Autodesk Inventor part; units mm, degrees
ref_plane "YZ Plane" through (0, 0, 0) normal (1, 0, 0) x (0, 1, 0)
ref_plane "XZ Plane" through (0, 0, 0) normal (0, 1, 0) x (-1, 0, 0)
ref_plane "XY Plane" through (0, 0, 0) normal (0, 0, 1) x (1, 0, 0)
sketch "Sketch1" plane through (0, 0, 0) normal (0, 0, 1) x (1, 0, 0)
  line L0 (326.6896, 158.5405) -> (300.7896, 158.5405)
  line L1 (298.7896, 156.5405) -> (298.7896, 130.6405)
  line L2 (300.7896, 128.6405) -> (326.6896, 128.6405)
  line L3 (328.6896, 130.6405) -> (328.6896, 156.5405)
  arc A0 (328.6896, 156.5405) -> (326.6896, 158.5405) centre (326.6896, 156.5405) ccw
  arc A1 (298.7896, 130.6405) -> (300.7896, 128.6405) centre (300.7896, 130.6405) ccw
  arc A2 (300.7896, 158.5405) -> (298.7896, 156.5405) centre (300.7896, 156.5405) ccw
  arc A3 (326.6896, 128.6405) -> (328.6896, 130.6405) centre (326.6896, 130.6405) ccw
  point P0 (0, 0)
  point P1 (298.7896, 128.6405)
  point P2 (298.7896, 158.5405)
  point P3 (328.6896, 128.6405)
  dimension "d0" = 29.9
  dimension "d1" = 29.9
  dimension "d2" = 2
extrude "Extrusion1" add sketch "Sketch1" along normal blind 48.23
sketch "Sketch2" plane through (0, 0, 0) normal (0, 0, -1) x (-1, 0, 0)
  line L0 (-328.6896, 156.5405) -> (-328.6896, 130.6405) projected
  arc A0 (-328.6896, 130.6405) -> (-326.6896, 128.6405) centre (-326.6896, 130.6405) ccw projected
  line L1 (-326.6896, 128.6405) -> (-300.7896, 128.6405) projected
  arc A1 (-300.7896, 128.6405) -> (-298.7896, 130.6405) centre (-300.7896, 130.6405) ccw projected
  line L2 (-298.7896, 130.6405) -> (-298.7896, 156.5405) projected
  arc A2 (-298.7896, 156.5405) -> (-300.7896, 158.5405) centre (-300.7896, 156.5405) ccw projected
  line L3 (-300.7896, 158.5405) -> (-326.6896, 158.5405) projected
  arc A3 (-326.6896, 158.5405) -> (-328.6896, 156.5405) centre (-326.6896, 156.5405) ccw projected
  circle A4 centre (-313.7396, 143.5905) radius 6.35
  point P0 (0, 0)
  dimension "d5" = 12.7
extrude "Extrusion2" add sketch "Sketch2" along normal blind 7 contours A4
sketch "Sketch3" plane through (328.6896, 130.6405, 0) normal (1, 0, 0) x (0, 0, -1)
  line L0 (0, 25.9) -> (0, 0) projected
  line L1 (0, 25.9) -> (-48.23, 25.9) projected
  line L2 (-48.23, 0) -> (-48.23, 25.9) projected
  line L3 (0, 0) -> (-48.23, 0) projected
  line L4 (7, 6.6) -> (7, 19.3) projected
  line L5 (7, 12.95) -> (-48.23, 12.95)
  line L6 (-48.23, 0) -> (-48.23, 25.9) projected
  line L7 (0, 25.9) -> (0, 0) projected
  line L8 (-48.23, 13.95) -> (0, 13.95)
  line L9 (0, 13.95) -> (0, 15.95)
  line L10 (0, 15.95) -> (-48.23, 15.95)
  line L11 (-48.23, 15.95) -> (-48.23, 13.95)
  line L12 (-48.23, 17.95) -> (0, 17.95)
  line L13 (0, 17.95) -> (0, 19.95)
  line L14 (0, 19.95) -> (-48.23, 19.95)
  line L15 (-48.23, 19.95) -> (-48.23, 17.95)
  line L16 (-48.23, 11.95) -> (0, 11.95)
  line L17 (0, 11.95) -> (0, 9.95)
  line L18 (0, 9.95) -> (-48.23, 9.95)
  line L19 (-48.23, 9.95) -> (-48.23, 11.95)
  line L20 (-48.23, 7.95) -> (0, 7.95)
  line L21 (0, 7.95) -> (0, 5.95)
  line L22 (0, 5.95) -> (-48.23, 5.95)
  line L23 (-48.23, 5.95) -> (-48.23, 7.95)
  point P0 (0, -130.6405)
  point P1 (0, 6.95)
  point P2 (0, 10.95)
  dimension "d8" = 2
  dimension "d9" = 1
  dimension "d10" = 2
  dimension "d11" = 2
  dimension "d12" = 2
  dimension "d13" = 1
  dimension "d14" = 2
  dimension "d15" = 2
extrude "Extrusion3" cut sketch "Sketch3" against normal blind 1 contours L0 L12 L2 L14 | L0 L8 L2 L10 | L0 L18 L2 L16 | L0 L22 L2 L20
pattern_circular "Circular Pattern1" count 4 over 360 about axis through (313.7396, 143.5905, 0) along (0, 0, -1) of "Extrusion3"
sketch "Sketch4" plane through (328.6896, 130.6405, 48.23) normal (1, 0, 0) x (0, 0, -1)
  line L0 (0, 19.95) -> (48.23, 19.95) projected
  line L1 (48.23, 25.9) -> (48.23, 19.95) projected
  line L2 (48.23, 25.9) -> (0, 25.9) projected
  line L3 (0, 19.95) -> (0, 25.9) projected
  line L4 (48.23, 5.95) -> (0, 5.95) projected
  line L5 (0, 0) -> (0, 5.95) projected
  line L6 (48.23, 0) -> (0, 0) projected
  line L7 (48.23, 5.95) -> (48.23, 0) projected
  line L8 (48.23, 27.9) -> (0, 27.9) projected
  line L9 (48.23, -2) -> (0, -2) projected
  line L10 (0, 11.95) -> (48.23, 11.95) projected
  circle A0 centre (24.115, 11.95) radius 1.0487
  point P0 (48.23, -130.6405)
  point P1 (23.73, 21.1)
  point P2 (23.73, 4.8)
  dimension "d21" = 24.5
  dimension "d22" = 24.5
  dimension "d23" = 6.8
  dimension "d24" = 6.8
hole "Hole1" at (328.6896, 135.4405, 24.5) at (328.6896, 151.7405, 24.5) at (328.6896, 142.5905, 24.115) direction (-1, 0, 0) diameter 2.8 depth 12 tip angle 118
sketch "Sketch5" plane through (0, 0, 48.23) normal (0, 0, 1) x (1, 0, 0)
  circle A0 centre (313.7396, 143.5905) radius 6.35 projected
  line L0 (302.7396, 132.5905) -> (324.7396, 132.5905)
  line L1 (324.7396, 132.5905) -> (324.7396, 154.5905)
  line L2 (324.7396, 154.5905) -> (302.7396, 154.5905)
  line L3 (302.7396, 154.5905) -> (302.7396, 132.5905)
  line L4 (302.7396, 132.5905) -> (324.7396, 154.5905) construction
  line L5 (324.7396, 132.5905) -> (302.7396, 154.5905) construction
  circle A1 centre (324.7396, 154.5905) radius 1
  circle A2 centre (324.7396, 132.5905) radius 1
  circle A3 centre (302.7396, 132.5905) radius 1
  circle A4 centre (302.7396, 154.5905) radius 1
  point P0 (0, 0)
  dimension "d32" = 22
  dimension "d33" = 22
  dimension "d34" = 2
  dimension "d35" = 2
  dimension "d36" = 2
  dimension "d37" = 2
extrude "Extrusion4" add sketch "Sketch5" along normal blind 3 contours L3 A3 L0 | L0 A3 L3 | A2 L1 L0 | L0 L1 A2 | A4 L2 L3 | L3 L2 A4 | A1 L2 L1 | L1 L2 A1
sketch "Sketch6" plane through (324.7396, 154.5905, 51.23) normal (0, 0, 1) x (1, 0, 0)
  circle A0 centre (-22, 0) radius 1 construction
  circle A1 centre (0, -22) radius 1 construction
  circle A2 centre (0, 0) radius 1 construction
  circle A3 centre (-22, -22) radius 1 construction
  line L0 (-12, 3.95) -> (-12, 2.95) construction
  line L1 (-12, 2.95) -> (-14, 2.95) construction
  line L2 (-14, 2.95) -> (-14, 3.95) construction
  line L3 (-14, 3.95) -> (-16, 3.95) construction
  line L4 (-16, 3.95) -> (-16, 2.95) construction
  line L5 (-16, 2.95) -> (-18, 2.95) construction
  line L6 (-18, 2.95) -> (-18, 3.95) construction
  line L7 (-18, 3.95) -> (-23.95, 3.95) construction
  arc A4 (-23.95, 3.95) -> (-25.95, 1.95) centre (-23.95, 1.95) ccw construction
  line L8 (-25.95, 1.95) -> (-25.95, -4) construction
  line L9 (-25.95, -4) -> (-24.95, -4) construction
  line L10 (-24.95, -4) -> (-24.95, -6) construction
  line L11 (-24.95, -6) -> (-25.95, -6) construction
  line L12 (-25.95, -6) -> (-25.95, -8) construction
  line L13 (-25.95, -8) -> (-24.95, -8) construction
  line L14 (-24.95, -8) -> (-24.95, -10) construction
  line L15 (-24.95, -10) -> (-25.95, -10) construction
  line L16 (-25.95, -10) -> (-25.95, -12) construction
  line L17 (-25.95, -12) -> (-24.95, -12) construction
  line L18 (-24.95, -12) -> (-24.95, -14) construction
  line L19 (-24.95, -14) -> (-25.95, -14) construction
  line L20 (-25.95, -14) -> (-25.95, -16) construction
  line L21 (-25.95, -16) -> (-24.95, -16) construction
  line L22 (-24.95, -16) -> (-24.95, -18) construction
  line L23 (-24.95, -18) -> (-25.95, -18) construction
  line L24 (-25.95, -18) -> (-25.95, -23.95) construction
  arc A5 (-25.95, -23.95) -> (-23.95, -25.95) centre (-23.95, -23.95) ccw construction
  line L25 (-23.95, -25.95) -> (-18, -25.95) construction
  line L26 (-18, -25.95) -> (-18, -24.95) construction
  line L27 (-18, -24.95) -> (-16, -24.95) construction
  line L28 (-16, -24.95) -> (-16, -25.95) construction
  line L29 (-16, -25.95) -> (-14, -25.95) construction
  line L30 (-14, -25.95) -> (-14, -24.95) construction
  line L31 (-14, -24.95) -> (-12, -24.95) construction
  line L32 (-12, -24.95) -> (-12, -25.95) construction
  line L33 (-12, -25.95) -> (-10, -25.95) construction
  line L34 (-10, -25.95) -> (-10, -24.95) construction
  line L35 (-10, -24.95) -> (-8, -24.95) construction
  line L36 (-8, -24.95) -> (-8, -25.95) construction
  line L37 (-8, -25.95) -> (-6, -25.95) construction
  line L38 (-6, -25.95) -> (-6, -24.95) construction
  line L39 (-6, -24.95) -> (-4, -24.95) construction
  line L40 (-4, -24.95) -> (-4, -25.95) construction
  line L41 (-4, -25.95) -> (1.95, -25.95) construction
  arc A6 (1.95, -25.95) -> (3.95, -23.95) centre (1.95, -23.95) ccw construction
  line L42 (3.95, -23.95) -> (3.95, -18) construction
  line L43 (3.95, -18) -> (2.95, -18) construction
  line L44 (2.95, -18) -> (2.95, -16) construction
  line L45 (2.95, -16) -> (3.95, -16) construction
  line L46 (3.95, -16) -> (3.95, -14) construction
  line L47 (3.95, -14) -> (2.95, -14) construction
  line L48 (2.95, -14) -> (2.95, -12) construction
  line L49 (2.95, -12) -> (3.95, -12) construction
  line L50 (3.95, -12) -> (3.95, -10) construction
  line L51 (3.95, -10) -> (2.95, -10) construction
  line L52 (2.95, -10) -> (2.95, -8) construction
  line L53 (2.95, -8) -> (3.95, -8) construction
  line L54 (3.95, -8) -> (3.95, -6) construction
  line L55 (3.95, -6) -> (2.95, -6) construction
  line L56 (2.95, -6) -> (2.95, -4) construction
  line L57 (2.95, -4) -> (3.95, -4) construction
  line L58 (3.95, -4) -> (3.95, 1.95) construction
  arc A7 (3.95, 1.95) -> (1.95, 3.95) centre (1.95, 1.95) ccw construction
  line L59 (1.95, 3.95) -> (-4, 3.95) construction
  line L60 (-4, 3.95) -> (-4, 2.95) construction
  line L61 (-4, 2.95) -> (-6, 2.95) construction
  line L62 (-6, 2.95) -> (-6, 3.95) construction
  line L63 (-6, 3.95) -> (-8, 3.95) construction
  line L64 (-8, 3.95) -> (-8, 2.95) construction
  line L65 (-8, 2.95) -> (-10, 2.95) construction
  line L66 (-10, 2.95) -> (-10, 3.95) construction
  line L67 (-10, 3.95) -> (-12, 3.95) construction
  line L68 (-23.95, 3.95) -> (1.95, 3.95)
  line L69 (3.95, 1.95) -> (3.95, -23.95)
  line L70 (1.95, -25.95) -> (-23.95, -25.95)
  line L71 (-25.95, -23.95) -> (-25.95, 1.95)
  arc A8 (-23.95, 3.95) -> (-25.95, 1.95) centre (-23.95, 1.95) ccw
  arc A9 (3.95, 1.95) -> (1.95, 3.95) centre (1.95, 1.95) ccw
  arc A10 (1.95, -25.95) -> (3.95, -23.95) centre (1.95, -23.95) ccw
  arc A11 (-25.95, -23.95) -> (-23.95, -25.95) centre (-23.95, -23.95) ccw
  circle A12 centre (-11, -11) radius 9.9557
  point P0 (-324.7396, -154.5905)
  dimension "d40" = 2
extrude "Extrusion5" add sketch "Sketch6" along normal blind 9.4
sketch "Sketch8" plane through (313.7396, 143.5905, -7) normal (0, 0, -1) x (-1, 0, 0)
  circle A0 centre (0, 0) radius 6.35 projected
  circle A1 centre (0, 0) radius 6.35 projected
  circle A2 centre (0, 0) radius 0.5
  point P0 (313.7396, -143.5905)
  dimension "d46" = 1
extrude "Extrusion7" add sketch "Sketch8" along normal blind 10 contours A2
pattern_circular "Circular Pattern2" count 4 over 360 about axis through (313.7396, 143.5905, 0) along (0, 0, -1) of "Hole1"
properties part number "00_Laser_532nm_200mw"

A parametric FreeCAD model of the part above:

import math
import FreeCAD as App
import Part
import Sketcher

V = App.Vector
Q = App.Units.Quantity


def add_polygon(sketch, points):
    """Adds a closed chain of lines whose ends are joined by coincident constraints."""
    first, n = sketch.GeometryCount, len(points)
    for a, b in zip(points, points[1:] + points[:1]):
        sketch.addGeometry(Part.LineSegment(App.Vector(*a, 0), App.Vector(*b, 0)), False)
    for i in range(n):
        sketch.addConstraint(Sketcher.Constraint("Coincident", first + i, 2, first + (i + 1) % n, 1))

doc = App.newDocument("Part")
body = doc.addObject("PartDesign::Body", "Body")

sketch1 = body.newObject("Sketcher::SketchObject", "Sketch")
sketch1.AttachmentSupport = (doc.getObject("XY_Plane"), [""])
sketch1.MapMode = "FlatFace"
sketch1.addGeometry([
    Part.ArcOfCircle(Part.Circle(V(326.7, 156.5, 0), V(0, 0, 1), 2), math.radians(0), math.radians(90)),
    Part.LineSegment(V(326.7, 158.5, 0), V(300.8, 158.5, 0)),
    Part.ArcOfCircle(Part.Circle(V(300.8, 156.5, 0), V(0, 0, 1), 2), math.radians(90), math.radians(180)),
    Part.LineSegment(V(298.8, 156.5, 0), V(298.8, 130.6, 0)),
    Part.ArcOfCircle(Part.Circle(V(300.8, 130.6, 0), V(0, 0, 1), 2), math.radians(180), math.radians(270)),
    Part.LineSegment(V(300.8, 128.6, 0), V(326.7, 128.6, 0)),
    Part.ArcOfCircle(Part.Circle(V(326.7, 130.6, 0), V(0, 0, 1), 2), math.radians(-90), math.radians(0)),
    Part.LineSegment(V(328.7, 130.6, 0), V(328.7, 156.5, 0)),
], False)
sketch1.addConstraint([
    Sketcher.Constraint("Tangent", 0, 2, 1, 1),
    Sketcher.Constraint("Tangent", 1, 2, 2, 1),
    Sketcher.Constraint("Tangent", 2, 2, 3, 1),
    Sketcher.Constraint("Tangent", 3, 2, 4, 1),
    Sketcher.Constraint("Tangent", 4, 2, 5, 1),
    Sketcher.Constraint("Tangent", 5, 2, 6, 1),
    Sketcher.Constraint("Tangent", 6, 2, 7, 1),
    Sketcher.Constraint("Tangent", 7, 2, 0, 1),
    Sketcher.Constraint("Horizontal", 1),
    Sketcher.Constraint("Vertical", 3),
    Sketcher.Constraint("Horizontal", 5),
    Sketcher.Constraint("Vertical", 7),
    Sketcher.Constraint("Equal", 0, 2),
    Sketcher.Constraint("Equal", 2, 4),
    Sketcher.Constraint("Equal", 4, 6),
    Sketcher.Constraint("Equal", 5, 3),
    Sketcher.Constraint("Radius", 0, Q("2 mm")),
    Sketcher.Constraint("DistanceX", 1, 2, 1, 1, Q("25.9 mm")),
    Sketcher.Constraint("DistanceX", -1, 1, 0, 3, Q("326.6896 mm")),
    Sketcher.Constraint("DistanceY", -1, 1, 0, 3, Q("156.5405 mm")),
])
pad1 = body.newObject("PartDesign::Pad", "Pad")
pad1.Profile = sketch1
pad1.Length = 48.23

sketch2 = body.newObject("Sketcher::SketchObject", "Sketch001")
sketch2.AttachmentSupport = (doc.getObject("XY_Plane"), [""])
sketch2.MapMode = "FlatFace"
sketch2.addGeometry(Part.Circle(V(314, 144, 0), V(0, 0, 1), 6), False)
sketch2.addConstraint([
    Sketcher.Constraint("Diameter", 0, Q("12.7 mm")),
    Sketcher.Constraint("DistanceX", -1, 1, 0, 3, Q("313.7396 mm")),
    Sketcher.Constraint("DistanceY", -1, 1, 0, 3, Q("143.5905 mm")),
])
pad2 = body.newObject("PartDesign::Pad", "Pad001")
pad2.Profile = sketch2
pad2.Length = 7
pad2.Reversed = True

sketch3 = body.newObject("Sketcher::SketchObject", "Sketch002")
sketch3.AttachmentSupport = (doc.getObject("YZ_Plane"), [""])
sketch3.MapMode = "FlatFace"
sketch3.AttachmentOffset = App.Placement(V(0, 0, 328.6896), App.Rotation())
add_polygon(sketch3, [(148.6, 0), (150.6, 0), (150.6, 48.2), (148.6, 48.2)])
add_polygon(sketch3, [(144.6, 0), (146.6, 0), (146.6, 48.2), (144.6, 48.2)])
add_polygon(sketch3, [(140.6, 0), (142.6, 0), (142.6, 48.2), (140.6, 48.2)])
add_polygon(sketch3, [(136.6, 0), (138.6, 0), (138.6, 48.2), (136.6, 48.2)])
sketch3.addConstraint([
    Sketcher.Constraint("Horizontal", 0),
    Sketcher.Constraint("Vertical", 1),
    Sketcher.Constraint("Horizontal", 2),
    Sketcher.Constraint("Vertical", 3),
    Sketcher.Constraint("Horizontal", 4),
    Sketcher.Constraint("Vertical", 5),
    Sketcher.Constraint("Horizontal", 6),
    Sketcher.Constraint("Vertical", 7),
    Sketcher.Constraint("Horizontal", 8),
    Sketcher.Constraint("Vertical", 9),
    Sketcher.Constraint("Horizontal", 10),
    Sketcher.Constraint("Vertical", 11),
    Sketcher.Constraint("Horizontal", 12),
    Sketcher.Constraint("Vertical", 13),
    Sketcher.Constraint("Horizontal", 14),
    Sketcher.Constraint("Vertical", 15),
    Sketcher.Constraint("PointOnObject", 0, 2, -1),
    Sketcher.Constraint("PointOnObject", 4, 2, -1),
    Sketcher.Constraint("PointOnObject", 8, 2, -1),
    Sketcher.Constraint("PointOnObject", 12, 2, -1),
    Sketcher.Constraint("Horizontal", 2, 2, 5, 2),
    Sketcher.Constraint("Horizontal", 6, 2, 9, 2),
    Sketcher.Constraint("Horizontal", 10, 2, 13, 2),
    Sketcher.Constraint("Equal", 2, 4),
    Sketcher.Constraint("Equal", 6, 8),
    Sketcher.Constraint("Equal", 10, 12),
    Sketcher.Constraint("DistanceX", 0, 1, 0, 2, Q("2 mm")),
    Sketcher.Constraint("DistanceX", 4, 2, 3, 2, Q("2 mm")),
    Sketcher.Constraint("DistanceX", 8, 2, 7, 2, Q("2 mm")),
    Sketcher.Constraint("DistanceX", 12, 2, 11, 2, Q("2 mm")),
    Sketcher.Constraint("DistanceY", 1, 1, 1, 2, Q("48.23 mm")),
    Sketcher.Constraint("DistanceX", -1, 1, 0, 2, Q("150.5905 mm")),
])
pocket1 = body.newObject("PartDesign::Pocket", "Pocket")
pocket1.Profile = sketch3
pocket1.Length = 1
doc.recompute()

datumline = body.newObject("PartDesign::Line", "DatumLine")
datumline.Placement = App.Placement(V(313.7396, 143.5905, 0), App.Rotation(V(0, 0, 1), V(0, 0, 1)))
polarpattern = body.newObject("PartDesign::PolarPattern", "PolarPattern")
polarpattern.Originals = [pocket1]
polarpattern.Axis = (datumline, [""])
polarpattern.Angle = 360
polarpattern.Occurrences = 4
body.Tip = polarpattern

sketch4 = body.newObject("Sketcher::SketchObject", "Sketch003")
sketch4.AttachmentSupport = (doc.getObject("YZ_Plane"), [""])
sketch4.MapMode = "FlatFace"
sketch4.AttachmentOffset = App.Placement(V(0, 0, 328.6896), App.Rotation())
sketch4.addGeometry([
    Part.Circle(V(135.4, 24.5, 0), V(0, 0, 1), 1.4),
    Part.Circle(V(151.7, 24.5, 0), V(0, 0, 1), 1.4),
    Part.Circle(V(142.6, 24.1, 0), V(0, 0, 1), 1.4),
], False)
sketch4.addConstraint([
    Sketcher.Constraint("Equal", 0, 1),
    Sketcher.Constraint("Equal", 1, 2),
    Sketcher.Constraint("Horizontal", 0, 3, 1, 3),
    Sketcher.Constraint("Diameter", 0, Q("2.8 mm")),
    Sketcher.Constraint("DistanceY", -1, 1, 0, 3, Q("24.5 mm")),
    Sketcher.Constraint("DistanceX", 0, 3, 1, 3, Q("16.3 mm")),
    Sketcher.Constraint("DistanceX", 0, 3, 2, 3, Q("7.15 mm")),
    Sketcher.Constraint("DistanceY", -1, 1, 2, 3, Q("24.115 mm")),
    Sketcher.Constraint("DistanceX", -1, 1, 0, 3, Q("135.4405 mm")),
])
doc.recompute()
hole = body.newObject("PartDesign::Hole", "Hole")
hole.Profile = sketch4
hole.ThreadType = "None"
hole.Diameter = 2.8
hole.DepthType = "Dimension"
hole.Depth = 12
hole.DrillPoint = "Angled"
hole.DrillPointAngle = 118

sketch5 = body.newObject("Sketcher::SketchObject", "Sketch004")
sketch5.AttachmentSupport = (doc.getObject("XY_Plane"), [""])
sketch5.MapMode = "FlatFace"
sketch5.AttachmentOffset = App.Placement(V(0, 0, 48.23), App.Rotation())
sketch5.addGeometry([
    Part.Circle(V(302.7, 132.6, 0), V(0, 0, 1), 1),
    Part.Circle(V(324.7, 132.6, 0), V(0, 0, 1), 1),
    Part.Circle(V(302.7, 154.6, 0), V(0, 0, 1), 1),
    Part.Circle(V(324.7, 154.6, 0), V(0, 0, 1), 1),
], False)
sketch5.addConstraint([
    Sketcher.Constraint("Equal", 0, 1),
    Sketcher.Constraint("Equal", 1, 2),
    Sketcher.Constraint("Equal", 2, 3),
    Sketcher.Constraint("Horizontal", 0, 3, 1, 3),
    Sketcher.Constraint("Horizontal", 2, 3, 3, 3),
    Sketcher.Constraint("Vertical", 0, 3, 2, 3),
    Sketcher.Constraint("Vertical", 1, 3, 3, 3),
    Sketcher.Constraint("Diameter", 0, Q("2 mm")),
    Sketcher.Constraint("DistanceX", 0, 3, 1, 3, Q("22 mm")),
    Sketcher.Constraint("DistanceY", 0, 3, 2, 3, Q("22 mm")),
    Sketcher.Constraint("DistanceX", -1, 1, 0, 3, Q("302.7396 mm")),
    Sketcher.Constraint("DistanceY", -1, 1, 0, 3, Q("132.5905 mm")),
])
pad3 = body.newObject("PartDesign::Pad", "Pad002")
pad3.Profile = sketch5
pad3.Length = 3

sketch6 = body.newObject("Sketcher::SketchObject", "Sketch005")
sketch6.AttachmentSupport = (doc.getObject("XY_Plane"), [""])
sketch6.MapMode = "FlatFace"
sketch6.AttachmentOffset = App.Placement(V(0, 0, 51.23), App.Rotation())
sketch6.addGeometry([
    Part.LineSegment(V(326.7, 158.5, 0), V(300.8, 158.5, 0)),
    Part.ArcOfCircle(Part.Circle(V(300.8, 156.5, 0), V(0, 0, 1), 2), math.radians(90), math.radians(180)),
    Part.LineSegment(V(298.8, 156.5, 0), V(298.8, 130.6, 0)),
    Part.ArcOfCircle(Part.Circle(V(300.8, 130.6, 0), V(0, 0, 1), 2), math.radians(180), math.radians(270)),
    Part.LineSegment(V(300.8, 128.6, 0), V(326.7, 128.6, 0)),
    Part.ArcOfCircle(Part.Circle(V(326.7, 130.6, 0), V(0, 0, 1), 2), math.radians(-90), math.radians(0)),
    Part.LineSegment(V(328.7, 130.6, 0), V(328.7, 156.5, 0)),
    Part.ArcOfCircle(Part.Circle(V(326.7, 156.5, 0), V(0, 0, 1), 2), math.radians(0), math.radians(90)),
    Part.Circle(V(313.7, 143.6, 0), V(0, 0, 1), 10),
], False)
sketch6.addConstraint([
    Sketcher.Constraint("Tangent", 0, 2, 1, 1),
    Sketcher.Constraint("Tangent", 1, 2, 2, 1),
    Sketcher.Constraint("Tangent", 2, 2, 3, 1),
    Sketcher.Constraint("Tangent", 3, 2, 4, 1),
    Sketcher.Constraint("Tangent", 4, 2, 5, 1),
    Sketcher.Constraint("Tangent", 5, 2, 6, 1),
    Sketcher.Constraint("Tangent", 6, 2, 7, 1),
    Sketcher.Constraint("Tangent", 7, 2, 0, 1),
    Sketcher.Constraint("Horizontal", 0),
    Sketcher.Constraint("Vertical", 2),
    Sketcher.Constraint("Horizontal", 4),
    Sketcher.Constraint("Vertical", 6),
    Sketcher.Constraint("Equal", 1, 3),
    Sketcher.Constraint("Equal", 3, 5),
    Sketcher.Constraint("Equal", 5, 7),
    Sketcher.Constraint("Equal", 4, 2),
    Sketcher.Constraint("Radius", 1, Q("2 mm")),
    Sketcher.Constraint("DistanceX", 0, 2, 0, 1, Q("25.9 mm")),
    Sketcher.Constraint("Diameter", 8, Q("19.9114 mm")),
    Sketcher.Constraint("DistanceX", 3, 3, 8, 3, Q("12.95 mm")),
    Sketcher.Constraint("DistanceY", 3, 3, 8, 3, Q("12.95 mm")),
    Sketcher.Constraint("DistanceX", -1, 1, 1, 3, Q("300.7896 mm")),
    Sketcher.Constraint("DistanceY", -1, 1, 1, 3, Q("156.5405 mm")),
])
pad4 = body.newObject("PartDesign::Pad", "Pad003")
pad4.Profile = sketch6
pad4.Length = 9.4

sketch7 = body.newObject("Sketcher::SketchObject", "Sketch006")
sketch7.AttachmentSupport = (doc.getObject("XY_Plane"), [""])
sketch7.MapMode = "FlatFace"
sketch7.AttachmentOffset = App.Placement(V(0, 0, -7), App.Rotation())
sketch7.addGeometry(Part.Circle(V(313.7, 143.6, 0), V(0, 0, 1), 0.5), False)
sketch7.addConstraint([
    Sketcher.Constraint("Diameter", 0, Q("1 mm")),
    Sketcher.Constraint("DistanceX", -1, 1, 0, 3, Q("313.7396 mm")),
    Sketcher.Constraint("DistanceY", -1, 1, 0, 3, Q("143.5905 mm")),
])
pad5 = body.newObject("PartDesign::Pad", "Pad004")
pad5.Profile = sketch7
pad5.Length = 10
pad5.Reversed = True
doc.recompute()

datumline2 = body.newObject("PartDesign::Line", "DatumLine001")
datumline2.Placement = App.Placement(V(313.7396, 143.5905, 0), App.Rotation(V(0, 0, 1), V(0, 0, 1)))
polarpattern2 = body.newObject("PartDesign::PolarPattern", "PolarPattern001")
polarpattern2.Originals = [hole]
polarpattern2.Axis = (datumline2, [""])
polarpattern2.Angle = 360
polarpattern2.Occurrences = 4
body.Tip = polarpattern2

doc.recompute()
